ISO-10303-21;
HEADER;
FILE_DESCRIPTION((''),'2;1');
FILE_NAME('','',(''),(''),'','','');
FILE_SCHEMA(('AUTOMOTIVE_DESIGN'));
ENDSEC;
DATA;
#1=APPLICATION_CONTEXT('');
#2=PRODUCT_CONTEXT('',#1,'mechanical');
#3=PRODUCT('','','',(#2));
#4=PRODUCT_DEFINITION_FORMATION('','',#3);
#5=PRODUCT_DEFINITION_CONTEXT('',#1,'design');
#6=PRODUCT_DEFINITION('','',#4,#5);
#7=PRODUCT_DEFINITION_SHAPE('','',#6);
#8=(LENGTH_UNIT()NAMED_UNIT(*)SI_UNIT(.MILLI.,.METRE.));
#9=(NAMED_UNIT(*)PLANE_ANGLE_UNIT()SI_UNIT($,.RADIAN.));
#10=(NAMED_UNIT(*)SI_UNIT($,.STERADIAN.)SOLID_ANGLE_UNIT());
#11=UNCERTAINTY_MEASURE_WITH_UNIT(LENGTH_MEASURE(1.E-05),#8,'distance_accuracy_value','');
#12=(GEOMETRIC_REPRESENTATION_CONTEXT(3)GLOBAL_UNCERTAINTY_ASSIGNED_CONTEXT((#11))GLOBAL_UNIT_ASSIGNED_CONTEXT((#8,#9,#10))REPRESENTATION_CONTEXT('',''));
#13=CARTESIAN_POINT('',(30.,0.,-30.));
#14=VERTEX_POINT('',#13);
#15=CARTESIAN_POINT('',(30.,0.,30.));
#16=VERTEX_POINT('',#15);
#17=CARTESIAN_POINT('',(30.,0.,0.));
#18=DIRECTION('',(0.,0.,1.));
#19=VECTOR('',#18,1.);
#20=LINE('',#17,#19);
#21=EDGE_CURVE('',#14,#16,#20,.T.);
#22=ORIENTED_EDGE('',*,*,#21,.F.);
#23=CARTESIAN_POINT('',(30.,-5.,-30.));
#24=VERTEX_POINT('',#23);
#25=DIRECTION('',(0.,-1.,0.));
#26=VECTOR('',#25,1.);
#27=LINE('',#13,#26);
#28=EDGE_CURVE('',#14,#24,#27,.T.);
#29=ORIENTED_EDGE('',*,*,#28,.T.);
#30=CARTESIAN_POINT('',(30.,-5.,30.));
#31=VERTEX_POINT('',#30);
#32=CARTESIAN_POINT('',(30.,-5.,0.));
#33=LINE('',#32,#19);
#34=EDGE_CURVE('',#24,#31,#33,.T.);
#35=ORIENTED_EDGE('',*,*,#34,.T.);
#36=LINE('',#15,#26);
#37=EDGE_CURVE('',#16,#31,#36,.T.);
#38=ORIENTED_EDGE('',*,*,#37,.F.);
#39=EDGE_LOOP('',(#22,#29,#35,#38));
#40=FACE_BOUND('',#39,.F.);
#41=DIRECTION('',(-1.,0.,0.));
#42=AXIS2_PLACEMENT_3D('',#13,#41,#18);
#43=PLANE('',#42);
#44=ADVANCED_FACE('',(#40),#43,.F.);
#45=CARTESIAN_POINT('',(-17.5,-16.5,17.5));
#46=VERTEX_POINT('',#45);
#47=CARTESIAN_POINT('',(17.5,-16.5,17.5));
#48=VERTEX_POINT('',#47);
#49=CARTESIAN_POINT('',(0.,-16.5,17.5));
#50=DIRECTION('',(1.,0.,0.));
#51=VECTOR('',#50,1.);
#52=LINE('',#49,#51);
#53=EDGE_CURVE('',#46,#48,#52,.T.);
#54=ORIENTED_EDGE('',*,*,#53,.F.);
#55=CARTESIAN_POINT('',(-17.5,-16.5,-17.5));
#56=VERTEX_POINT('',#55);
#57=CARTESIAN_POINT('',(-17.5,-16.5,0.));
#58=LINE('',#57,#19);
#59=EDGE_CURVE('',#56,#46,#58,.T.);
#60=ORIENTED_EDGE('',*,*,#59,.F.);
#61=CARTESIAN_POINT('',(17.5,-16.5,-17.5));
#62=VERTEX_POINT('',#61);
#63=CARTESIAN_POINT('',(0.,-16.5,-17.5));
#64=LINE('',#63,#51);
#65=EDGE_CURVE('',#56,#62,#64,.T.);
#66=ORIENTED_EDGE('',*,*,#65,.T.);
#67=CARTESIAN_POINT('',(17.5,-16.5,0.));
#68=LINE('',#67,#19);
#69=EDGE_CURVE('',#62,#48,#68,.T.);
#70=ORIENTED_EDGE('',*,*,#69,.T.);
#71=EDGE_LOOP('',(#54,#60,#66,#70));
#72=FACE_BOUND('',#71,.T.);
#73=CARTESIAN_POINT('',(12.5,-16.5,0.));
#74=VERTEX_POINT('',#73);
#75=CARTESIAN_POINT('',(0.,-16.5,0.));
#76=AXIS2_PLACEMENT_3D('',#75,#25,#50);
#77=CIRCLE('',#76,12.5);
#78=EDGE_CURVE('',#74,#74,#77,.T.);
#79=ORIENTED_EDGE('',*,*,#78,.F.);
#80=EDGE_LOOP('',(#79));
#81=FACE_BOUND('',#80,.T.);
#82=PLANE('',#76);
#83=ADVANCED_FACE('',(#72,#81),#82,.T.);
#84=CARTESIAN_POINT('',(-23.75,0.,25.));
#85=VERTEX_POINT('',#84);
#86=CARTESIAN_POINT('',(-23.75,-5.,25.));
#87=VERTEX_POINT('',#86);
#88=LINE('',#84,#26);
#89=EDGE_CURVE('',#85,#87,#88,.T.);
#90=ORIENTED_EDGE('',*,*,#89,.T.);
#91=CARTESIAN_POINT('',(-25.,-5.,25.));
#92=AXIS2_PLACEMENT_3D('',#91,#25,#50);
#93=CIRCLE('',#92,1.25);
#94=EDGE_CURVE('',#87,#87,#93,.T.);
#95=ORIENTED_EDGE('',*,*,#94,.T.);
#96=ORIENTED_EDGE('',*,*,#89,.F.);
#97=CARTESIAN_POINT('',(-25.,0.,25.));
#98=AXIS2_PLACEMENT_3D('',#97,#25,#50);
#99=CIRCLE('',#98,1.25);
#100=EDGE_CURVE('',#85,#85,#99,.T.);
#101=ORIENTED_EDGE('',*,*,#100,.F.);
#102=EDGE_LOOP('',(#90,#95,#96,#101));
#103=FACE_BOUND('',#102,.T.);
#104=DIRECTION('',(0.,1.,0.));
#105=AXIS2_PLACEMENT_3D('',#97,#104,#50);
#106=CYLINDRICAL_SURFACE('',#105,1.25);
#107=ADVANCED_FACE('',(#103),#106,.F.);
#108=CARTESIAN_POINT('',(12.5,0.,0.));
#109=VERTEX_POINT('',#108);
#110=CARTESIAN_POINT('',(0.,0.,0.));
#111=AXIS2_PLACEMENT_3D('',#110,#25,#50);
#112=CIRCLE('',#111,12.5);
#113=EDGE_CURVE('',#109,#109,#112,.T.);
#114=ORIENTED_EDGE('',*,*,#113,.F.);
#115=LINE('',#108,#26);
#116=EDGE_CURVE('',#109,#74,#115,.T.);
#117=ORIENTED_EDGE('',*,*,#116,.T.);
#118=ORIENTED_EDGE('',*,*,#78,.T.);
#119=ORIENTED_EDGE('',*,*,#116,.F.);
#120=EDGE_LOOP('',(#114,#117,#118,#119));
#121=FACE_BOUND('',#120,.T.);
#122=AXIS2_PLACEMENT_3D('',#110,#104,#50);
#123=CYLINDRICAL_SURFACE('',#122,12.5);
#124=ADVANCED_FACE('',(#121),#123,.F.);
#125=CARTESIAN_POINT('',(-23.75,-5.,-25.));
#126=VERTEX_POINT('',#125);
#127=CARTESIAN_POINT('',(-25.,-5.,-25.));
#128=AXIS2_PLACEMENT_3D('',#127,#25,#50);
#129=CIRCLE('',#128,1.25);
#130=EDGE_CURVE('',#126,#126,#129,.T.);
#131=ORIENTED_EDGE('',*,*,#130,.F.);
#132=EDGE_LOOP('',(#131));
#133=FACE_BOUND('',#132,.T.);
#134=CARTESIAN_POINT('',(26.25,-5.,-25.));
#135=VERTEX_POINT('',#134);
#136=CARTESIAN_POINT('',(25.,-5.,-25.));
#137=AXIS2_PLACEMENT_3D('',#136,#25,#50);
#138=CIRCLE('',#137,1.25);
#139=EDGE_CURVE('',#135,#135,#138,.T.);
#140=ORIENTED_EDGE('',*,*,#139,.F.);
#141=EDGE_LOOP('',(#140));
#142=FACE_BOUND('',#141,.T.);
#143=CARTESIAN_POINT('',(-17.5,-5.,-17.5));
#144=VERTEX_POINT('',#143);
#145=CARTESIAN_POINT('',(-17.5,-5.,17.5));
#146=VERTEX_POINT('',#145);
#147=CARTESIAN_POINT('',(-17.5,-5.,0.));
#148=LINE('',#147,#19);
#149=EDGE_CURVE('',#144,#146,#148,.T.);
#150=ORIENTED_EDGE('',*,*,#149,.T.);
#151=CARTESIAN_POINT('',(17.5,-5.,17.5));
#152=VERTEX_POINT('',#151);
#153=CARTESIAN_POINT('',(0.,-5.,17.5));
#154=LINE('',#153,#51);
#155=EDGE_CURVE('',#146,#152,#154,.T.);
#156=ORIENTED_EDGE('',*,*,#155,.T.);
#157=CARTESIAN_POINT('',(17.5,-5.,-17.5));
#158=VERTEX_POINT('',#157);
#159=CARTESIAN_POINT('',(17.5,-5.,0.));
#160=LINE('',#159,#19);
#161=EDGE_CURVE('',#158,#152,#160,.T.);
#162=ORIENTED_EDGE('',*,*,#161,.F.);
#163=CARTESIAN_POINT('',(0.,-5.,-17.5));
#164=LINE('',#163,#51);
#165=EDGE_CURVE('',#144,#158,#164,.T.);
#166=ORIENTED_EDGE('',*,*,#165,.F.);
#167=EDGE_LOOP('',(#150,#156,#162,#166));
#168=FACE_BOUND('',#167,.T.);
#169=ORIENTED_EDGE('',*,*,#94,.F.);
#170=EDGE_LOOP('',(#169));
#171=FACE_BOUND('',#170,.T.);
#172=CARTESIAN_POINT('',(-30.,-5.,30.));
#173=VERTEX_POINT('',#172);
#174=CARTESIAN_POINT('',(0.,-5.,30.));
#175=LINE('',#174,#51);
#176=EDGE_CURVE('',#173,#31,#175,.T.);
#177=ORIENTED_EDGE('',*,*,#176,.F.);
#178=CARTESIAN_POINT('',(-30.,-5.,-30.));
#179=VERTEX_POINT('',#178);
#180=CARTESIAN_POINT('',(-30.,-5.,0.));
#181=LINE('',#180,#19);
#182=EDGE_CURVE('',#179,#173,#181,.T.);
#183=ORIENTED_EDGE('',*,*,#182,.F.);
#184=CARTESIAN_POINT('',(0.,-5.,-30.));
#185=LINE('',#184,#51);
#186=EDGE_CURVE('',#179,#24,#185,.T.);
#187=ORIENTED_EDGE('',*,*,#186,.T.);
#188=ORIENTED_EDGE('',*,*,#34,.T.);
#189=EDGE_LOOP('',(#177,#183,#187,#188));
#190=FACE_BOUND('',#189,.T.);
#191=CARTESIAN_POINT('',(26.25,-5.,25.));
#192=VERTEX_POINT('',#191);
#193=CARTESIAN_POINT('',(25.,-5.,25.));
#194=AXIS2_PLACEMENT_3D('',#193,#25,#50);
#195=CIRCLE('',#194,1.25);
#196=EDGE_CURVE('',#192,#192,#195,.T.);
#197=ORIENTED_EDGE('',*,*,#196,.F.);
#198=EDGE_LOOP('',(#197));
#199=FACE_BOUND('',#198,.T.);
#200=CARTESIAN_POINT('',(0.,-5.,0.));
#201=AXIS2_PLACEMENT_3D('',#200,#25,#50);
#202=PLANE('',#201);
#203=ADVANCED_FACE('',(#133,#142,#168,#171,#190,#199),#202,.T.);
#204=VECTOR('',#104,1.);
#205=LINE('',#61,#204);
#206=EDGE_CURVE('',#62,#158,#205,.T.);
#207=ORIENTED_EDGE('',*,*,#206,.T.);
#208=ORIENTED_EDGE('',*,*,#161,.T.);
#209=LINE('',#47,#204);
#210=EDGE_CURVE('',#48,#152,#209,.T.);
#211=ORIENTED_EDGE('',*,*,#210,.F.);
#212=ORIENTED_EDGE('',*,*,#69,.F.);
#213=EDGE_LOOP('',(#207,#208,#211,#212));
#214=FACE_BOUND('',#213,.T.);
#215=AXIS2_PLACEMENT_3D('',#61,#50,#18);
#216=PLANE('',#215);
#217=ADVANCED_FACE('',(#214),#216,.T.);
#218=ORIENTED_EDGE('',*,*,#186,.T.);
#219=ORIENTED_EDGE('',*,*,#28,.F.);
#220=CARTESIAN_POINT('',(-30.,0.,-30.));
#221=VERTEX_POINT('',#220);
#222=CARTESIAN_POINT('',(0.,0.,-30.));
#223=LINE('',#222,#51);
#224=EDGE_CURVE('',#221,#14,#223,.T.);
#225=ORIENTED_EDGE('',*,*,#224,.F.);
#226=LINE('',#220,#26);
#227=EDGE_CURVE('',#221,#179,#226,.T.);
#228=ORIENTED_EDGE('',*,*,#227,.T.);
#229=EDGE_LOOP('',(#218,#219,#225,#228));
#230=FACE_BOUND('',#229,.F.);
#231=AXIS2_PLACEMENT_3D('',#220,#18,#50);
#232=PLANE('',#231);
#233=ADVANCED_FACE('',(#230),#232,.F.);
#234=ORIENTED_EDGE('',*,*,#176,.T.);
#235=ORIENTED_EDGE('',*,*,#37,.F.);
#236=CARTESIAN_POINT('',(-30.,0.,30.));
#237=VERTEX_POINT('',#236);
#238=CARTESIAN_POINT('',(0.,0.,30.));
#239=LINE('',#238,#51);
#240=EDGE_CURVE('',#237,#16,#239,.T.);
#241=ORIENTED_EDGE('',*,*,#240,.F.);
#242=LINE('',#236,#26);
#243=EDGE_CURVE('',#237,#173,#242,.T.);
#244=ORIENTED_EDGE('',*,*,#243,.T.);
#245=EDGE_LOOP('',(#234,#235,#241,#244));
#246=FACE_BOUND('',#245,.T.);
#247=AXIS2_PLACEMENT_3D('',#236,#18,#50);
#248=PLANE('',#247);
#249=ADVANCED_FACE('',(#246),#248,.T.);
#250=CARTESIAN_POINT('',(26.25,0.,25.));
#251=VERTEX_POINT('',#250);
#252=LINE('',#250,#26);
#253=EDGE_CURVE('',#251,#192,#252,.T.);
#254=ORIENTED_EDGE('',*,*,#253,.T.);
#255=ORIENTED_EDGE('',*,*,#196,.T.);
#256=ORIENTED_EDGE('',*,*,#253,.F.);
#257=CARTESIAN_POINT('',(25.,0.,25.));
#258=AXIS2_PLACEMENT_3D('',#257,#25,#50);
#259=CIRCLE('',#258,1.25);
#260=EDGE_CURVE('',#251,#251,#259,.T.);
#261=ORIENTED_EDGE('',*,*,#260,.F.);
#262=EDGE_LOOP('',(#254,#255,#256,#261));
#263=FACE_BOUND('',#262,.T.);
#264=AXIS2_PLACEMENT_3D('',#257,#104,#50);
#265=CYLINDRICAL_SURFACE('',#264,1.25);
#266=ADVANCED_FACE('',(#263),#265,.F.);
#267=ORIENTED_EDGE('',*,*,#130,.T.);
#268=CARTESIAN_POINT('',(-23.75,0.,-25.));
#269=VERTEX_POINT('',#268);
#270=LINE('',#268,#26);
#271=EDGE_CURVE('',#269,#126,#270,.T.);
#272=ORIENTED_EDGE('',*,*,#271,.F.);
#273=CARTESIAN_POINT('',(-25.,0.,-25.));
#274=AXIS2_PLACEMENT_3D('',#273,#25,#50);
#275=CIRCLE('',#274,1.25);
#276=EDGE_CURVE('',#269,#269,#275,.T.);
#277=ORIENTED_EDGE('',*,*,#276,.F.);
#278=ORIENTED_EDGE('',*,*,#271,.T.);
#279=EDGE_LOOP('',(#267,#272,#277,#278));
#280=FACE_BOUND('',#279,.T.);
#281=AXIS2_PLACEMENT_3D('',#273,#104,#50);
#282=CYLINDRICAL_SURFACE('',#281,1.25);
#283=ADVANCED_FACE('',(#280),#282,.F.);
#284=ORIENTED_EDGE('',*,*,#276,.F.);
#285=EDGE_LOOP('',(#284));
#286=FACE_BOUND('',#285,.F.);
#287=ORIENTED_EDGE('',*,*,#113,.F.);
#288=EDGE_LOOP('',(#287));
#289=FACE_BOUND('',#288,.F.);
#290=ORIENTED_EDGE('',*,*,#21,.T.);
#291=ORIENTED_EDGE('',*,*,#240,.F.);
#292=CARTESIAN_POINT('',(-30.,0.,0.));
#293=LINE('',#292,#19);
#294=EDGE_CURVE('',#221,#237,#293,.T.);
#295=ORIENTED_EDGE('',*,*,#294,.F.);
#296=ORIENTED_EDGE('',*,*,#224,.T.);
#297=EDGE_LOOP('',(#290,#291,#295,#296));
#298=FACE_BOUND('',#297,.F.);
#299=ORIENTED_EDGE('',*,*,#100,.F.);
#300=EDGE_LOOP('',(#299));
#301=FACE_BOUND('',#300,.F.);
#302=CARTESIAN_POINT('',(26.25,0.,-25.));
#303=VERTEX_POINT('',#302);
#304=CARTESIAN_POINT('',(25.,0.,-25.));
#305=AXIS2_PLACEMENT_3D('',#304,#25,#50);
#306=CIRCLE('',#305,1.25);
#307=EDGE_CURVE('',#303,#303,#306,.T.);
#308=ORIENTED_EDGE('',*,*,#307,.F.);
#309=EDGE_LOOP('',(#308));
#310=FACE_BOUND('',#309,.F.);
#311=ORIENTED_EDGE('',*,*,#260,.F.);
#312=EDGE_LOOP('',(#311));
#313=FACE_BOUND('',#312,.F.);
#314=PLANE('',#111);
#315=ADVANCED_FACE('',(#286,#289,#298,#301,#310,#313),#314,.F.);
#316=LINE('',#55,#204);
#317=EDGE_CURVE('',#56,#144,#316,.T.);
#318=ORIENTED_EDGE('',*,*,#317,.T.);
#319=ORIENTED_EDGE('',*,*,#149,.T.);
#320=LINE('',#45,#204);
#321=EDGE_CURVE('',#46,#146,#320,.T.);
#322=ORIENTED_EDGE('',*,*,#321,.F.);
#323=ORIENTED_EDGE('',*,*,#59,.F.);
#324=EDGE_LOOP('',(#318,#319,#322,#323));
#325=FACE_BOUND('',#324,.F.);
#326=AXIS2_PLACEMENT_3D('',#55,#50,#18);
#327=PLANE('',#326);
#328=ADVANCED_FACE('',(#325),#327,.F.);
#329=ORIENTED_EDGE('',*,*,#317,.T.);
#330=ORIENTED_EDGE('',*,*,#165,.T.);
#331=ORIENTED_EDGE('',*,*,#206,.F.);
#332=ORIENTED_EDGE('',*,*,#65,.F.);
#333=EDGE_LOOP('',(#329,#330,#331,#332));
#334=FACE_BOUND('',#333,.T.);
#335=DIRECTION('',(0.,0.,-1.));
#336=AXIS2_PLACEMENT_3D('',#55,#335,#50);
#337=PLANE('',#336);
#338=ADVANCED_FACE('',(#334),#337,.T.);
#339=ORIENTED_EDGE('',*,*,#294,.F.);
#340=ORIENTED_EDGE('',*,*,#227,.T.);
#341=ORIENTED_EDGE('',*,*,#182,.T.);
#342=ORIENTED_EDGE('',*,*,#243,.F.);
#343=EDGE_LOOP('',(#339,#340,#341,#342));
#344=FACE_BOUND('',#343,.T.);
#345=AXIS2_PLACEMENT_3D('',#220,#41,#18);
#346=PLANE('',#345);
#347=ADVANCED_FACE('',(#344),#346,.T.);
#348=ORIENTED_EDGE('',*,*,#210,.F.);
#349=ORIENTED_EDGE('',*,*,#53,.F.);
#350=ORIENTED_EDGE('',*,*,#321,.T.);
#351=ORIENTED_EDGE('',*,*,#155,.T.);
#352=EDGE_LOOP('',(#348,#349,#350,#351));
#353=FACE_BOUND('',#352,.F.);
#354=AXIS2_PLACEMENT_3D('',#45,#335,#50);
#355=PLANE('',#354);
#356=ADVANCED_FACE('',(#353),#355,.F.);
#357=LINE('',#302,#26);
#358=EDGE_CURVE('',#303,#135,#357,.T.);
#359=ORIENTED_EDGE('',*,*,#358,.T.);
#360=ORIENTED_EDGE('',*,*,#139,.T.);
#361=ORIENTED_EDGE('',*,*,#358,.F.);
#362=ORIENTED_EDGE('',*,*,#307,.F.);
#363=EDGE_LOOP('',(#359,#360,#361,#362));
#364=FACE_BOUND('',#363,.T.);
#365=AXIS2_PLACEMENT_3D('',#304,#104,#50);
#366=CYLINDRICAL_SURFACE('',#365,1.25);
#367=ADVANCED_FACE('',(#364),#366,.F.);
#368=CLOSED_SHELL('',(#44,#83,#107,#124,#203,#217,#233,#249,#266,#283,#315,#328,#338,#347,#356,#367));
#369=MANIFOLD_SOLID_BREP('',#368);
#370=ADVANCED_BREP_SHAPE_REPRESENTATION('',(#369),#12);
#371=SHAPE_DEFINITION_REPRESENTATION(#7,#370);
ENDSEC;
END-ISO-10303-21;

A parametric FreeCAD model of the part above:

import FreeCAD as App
import Part
import Sketcher
from FreeCAD import Vector
Q = App.Units.Quantity


def add_polygon(sketch, points):
    """Adds a closed chain of lines whose ends are joined by coincident constraints."""
    first, n = sketch.GeometryCount, len(points)
    for a, b in zip(points, points[1:] + points[:1]):
        sketch.addGeometry(Part.LineSegment(App.Vector(*a, 0), App.Vector(*b, 0)), False)
    for i in range(n):
        sketch.addConstraint(Sketcher.Constraint("Coincident", first + i, 2, first + (i + 1) % n, 1))

doc = App.newDocument("Part")
body = doc.addObject("PartDesign::Body", "Body")

# Sketch on XZ plane
sketch1 = body.newObject("Sketcher::SketchObject", "Sketch")
sketch1.AttachmentSupport = (doc.getObject("XZ_Plane"), [""])
sketch1.MapMode = "FlatFace"
add_polygon(sketch1, [(-30, 30), (-30, -30), (30, -30), (30, 30)])  # lines 0-3
sketch1.addGeometry(Part.Circle(Vector(-25, -25, 0), Vector(0, 0, 1), 1.25), False)  # 4
sketch1.addGeometry(Part.Circle(Vector(25, -25, 0), Vector(0, 0, 1), 1.25), False)  # 5
sketch1.addGeometry(Part.Circle(Vector(-25, 25, 0), Vector(0, 0, 1), 1.25), False)  # 6
sketch1.addGeometry(Part.Circle(Vector(0, 0, 0), Vector(0, 0, 1), 12.5), False)  # 7
sketch1.addGeometry(Part.Circle(Vector(25, 25, 0), Vector(0, 0, 1), 1.25), False)  # 8
sketch1.addConstraint([
    Sketcher.Constraint("Vertical", 0),
    Sketcher.Constraint("Horizontal", 1),
    Sketcher.Constraint("Vertical", 2),
    Sketcher.Constraint("Horizontal", 3),
    Sketcher.Constraint("Coincident", 7, 3, -1, 1),
    Sketcher.Constraint("Equal", 4, 5),
    Sketcher.Constraint("Equal", 5, 6),
    Sketcher.Constraint("Equal", 6, 8),
    Sketcher.Constraint("Symmetric", 5, 3, 6, 3, -1, 1),
    Sketcher.Constraint("Symmetric", 4, 3, 8, 3, -1, 1),
    Sketcher.Constraint("Symmetric", 0, 2, 2, 2, -1, 1),
    Sketcher.Constraint("Symmetric", 4, 3, 5, 3, -2),
    Sketcher.Constraint("Equal", 3, 0),
    Sketcher.Constraint("Diameter", 7, Q("25 mm")),
    Sketcher.Constraint("Diameter", 4, Q("2.5 mm")),
    Sketcher.Constraint("DistanceX", 1, 1, 1, 2, Q("60 mm")),
    Sketcher.Constraint("DistanceX", 4, 3, -1, 1, Q("25 mm")),
    Sketcher.Constraint("DistanceY", 4, 3, -1, 1, Q("25 mm")),
])
pad1 = body.newObject("PartDesign::Pad", "Pad")
pad1.Profile = sketch1
pad1.Length = 16.5

# Sketch on XZ plane
sketch2 = body.newObject("Sketcher::SketchObject", "Sketch001")
sketch2.AttachmentSupport = (doc.getObject("XZ_Plane"), [""])
sketch2.MapMode = "FlatFace"
sketch2.AttachmentOffset = App.Placement(Vector(0, 0, 16.5), App.Rotation())
add_polygon(sketch2, [(-30, 30), (-30, -30), (30, -30), (30, 30)])  # lines 0-3
sketch2.addGeometry(Part.Circle(Vector(-25, -25, 0), Vector(0, 0, 1), 1.25), False)  # 4
sketch2.addGeometry(Part.Circle(Vector(25, -25, 0), Vector(0, 0, 1), 1.25), False)  # 5
sketch2.addGeometry(Part.Circle(Vector(-25, 25, 0), Vector(0, 0, 1), 1.25), False)  # 6
add_polygon(sketch2, [(17.5, -17.5), (-17.5, -17.5), (-17.5, 17.5), (17.5, 17.5)])  # lines 7-10
sketch2.addGeometry(Part.Circle(Vector(25, 25, 0), Vector(0, 0, 1), 1.25), False)  # 11
sketch2.addConstraint([
    Sketcher.Constraint("Vertical", 0),
    Sketcher.Constraint("Horizontal", 1),
    Sketcher.Constraint("Vertical", 2),
    Sketcher.Constraint("Horizontal", 3),
    Sketcher.Constraint("Horizontal", 7),
    Sketcher.Constraint("Vertical", 8),
    Sketcher.Constraint("Horizontal", 9),
    Sketcher.Constraint("Vertical", 10),
    Sketcher.Constraint("Equal", 4, 5),
    Sketcher.Constraint("Equal", 5, 6),
    Sketcher.Constraint("Equal", 6, 11),
    Sketcher.Constraint("Symmetric", 5, 3, 6, 3, -1, 1),
    Sketcher.Constraint("Symmetric", 4, 3, 11, 3, -1, 1),
    Sketcher.Constraint("Symmetric", 0, 2, 2, 2, -1, 1),
    Sketcher.Constraint("Symmetric", 7, 2, 9, 2, -1, 1),
    Sketcher.Constraint("Symmetric", 4, 3, 5, 3, -2),
    Sketcher.Constraint("Equal", 3, 0),
    Sketcher.Constraint("Equal", 9, 8),
    Sketcher.Constraint("Diameter", 4, Q("2.5 mm")),
    Sketcher.Constraint("DistanceX", 1, 1, 1, 2, Q("60 mm")),
    Sketcher.Constraint("DistanceX", 7, 2, 7, 1, Q("35 mm")),
    Sketcher.Constraint("DistanceX", 4, 3, -1, 1, Q("25 mm")),
    Sketcher.Constraint("DistanceY", 4, 3, -1, 1, Q("25 mm")),
])
pocket1 = body.newObject("PartDesign::Pocket", "Pocket")
pocket1.Profile = sketch2
pocket1.Length = 11.5

doc.recompute()
